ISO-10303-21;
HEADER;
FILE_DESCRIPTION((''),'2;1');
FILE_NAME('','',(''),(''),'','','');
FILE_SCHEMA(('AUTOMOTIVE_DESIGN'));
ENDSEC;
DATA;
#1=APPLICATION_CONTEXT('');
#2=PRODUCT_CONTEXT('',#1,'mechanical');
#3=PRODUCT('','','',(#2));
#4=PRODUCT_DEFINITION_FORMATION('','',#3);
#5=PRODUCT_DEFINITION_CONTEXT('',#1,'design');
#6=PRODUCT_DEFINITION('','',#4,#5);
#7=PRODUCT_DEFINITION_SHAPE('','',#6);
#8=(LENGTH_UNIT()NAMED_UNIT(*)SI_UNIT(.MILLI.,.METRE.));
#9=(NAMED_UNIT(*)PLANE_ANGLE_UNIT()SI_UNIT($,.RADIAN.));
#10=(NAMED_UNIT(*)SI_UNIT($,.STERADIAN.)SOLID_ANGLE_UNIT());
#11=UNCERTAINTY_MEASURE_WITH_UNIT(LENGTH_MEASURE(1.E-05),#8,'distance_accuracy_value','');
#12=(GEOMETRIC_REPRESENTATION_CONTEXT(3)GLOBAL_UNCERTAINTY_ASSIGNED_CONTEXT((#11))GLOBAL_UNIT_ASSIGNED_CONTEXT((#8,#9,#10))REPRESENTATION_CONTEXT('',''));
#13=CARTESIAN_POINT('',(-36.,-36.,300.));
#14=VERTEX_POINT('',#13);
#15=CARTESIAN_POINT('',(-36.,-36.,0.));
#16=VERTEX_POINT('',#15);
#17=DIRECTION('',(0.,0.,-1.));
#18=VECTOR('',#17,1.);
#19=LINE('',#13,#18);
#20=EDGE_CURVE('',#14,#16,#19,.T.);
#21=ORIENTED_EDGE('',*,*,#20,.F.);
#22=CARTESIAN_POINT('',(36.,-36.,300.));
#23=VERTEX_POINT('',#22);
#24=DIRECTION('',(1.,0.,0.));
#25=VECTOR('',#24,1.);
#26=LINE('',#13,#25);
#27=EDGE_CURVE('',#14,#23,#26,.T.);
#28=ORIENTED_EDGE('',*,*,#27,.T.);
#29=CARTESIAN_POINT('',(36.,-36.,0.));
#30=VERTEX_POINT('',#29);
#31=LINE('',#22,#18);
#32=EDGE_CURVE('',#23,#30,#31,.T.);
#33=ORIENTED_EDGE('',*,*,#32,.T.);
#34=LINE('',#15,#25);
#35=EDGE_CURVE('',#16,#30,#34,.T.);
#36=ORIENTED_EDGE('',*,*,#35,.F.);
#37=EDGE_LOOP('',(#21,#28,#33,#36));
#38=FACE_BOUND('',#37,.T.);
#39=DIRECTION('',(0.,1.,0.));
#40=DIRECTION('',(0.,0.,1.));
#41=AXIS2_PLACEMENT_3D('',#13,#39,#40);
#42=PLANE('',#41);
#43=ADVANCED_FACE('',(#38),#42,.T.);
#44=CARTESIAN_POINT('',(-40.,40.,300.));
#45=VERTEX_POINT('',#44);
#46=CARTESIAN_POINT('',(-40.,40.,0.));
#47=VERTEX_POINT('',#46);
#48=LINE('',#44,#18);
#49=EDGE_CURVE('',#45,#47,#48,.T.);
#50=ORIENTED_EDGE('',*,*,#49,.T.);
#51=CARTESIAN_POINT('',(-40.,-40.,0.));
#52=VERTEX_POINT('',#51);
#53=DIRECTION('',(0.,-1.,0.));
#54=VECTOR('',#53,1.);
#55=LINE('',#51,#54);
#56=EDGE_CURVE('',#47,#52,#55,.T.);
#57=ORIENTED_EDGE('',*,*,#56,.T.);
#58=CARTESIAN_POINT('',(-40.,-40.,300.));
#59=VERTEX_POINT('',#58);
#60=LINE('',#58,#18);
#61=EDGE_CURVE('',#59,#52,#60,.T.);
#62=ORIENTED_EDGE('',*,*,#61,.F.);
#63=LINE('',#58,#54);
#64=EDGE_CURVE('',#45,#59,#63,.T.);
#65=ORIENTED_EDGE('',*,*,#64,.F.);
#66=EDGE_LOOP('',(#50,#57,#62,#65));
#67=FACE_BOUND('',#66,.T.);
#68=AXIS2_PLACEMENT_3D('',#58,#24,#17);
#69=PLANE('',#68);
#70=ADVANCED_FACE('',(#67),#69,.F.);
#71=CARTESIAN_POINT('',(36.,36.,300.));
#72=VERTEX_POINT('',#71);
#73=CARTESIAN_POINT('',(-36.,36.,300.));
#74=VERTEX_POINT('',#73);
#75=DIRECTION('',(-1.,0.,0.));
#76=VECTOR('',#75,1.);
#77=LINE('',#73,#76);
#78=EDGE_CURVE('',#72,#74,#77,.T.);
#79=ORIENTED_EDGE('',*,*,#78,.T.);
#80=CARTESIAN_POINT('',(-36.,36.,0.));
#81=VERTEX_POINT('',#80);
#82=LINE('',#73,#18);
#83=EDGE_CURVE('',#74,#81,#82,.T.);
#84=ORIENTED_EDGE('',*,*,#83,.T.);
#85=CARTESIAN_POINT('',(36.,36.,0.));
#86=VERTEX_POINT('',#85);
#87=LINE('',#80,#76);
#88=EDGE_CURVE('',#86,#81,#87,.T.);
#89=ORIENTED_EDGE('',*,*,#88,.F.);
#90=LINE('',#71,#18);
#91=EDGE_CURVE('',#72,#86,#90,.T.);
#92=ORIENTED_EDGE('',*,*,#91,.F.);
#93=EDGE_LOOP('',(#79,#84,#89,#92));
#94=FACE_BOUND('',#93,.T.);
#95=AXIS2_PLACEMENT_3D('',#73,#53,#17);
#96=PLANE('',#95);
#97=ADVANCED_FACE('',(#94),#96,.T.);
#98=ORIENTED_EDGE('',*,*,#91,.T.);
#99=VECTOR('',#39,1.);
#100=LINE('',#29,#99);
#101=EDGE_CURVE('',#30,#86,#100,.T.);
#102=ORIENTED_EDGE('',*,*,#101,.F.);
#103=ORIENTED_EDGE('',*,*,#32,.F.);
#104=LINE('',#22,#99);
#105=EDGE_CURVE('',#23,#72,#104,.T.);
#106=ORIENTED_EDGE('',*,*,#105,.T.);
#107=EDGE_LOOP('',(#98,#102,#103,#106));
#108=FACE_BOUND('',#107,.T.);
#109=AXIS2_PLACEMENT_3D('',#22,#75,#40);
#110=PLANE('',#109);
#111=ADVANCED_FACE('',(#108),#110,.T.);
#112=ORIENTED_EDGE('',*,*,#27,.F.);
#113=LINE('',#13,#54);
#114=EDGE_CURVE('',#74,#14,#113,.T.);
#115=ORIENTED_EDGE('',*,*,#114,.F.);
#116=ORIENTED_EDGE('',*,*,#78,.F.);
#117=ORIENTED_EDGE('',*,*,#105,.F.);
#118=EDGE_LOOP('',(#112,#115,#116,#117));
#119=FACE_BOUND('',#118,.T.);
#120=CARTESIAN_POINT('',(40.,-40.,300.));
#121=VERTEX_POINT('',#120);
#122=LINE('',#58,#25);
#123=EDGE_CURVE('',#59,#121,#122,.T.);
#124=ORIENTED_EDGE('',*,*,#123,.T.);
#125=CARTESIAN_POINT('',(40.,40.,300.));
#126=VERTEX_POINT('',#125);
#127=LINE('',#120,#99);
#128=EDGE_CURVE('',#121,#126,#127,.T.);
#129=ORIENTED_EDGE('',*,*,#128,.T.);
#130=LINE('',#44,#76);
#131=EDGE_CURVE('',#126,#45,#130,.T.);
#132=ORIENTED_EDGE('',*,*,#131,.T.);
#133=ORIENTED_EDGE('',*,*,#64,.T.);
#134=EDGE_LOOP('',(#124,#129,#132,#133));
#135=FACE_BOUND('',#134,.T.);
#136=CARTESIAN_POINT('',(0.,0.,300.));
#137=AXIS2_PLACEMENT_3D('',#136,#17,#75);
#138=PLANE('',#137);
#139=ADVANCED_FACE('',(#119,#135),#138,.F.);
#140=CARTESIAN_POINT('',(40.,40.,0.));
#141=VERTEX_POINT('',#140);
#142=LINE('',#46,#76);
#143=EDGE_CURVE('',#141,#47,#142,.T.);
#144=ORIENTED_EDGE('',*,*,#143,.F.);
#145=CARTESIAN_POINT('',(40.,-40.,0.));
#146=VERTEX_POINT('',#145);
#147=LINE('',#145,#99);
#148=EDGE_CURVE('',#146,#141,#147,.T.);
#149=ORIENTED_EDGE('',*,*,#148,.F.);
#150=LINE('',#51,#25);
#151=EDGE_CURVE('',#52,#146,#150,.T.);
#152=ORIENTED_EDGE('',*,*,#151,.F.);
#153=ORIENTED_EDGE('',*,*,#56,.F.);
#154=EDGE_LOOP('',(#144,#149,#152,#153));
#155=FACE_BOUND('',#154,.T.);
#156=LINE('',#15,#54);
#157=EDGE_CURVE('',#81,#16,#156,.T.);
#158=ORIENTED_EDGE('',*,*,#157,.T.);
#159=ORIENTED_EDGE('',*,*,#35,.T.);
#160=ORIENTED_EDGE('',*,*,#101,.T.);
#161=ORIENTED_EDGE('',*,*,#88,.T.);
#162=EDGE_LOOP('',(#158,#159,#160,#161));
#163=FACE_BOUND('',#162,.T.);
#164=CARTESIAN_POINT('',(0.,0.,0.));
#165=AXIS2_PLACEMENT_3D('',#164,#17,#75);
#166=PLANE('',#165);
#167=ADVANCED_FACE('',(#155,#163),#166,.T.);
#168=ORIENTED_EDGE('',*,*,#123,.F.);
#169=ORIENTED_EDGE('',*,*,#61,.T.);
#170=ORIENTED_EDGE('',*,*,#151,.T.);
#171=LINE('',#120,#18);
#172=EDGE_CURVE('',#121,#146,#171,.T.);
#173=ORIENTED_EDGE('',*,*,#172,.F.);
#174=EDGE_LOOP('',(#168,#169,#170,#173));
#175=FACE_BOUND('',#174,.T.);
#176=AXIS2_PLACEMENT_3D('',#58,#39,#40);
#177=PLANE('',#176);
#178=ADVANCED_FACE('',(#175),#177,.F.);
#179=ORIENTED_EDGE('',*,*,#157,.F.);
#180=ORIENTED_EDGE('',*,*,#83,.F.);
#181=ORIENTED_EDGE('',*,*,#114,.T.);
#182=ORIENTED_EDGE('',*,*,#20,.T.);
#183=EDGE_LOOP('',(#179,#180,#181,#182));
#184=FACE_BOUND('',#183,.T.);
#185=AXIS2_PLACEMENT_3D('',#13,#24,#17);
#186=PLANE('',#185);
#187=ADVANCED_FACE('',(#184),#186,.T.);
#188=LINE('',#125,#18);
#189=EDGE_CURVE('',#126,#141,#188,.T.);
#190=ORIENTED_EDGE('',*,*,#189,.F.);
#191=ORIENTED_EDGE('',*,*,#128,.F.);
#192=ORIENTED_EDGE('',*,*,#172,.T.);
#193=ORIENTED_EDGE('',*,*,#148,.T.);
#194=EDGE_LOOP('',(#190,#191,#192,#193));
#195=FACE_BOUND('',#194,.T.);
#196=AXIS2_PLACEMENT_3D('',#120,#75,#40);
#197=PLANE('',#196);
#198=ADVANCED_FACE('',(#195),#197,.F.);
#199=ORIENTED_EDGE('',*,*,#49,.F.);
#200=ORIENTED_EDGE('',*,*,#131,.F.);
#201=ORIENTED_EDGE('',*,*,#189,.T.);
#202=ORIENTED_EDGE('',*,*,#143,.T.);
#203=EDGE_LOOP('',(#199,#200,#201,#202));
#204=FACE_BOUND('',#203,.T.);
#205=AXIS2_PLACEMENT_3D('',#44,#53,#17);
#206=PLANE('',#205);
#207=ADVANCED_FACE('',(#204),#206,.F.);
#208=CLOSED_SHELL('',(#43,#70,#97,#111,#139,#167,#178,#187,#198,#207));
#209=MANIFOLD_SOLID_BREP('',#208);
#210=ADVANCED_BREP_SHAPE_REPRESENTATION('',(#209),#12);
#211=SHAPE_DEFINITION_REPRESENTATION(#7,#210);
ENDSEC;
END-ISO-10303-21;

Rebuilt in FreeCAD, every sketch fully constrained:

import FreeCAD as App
import Part
import Sketcher

V = App.Vector

doc = App.newDocument("Part")
body = doc.addObject("PartDesign::Body", "Body")

# Sketch on XY plane
sketch1 = doc.addObject("Sketcher::SketchObject", "Sketch")
body.addObject(sketch1)
sketch1.AttachmentSupport = (doc.XY_Plane, [""])
sketch1.MapMode = "FlatFace"
sketch1.addGeometry(Part.LineSegment(V(-40, 40, 0), V(-40, -40, 0)), False)
sketch1.addGeometry(Part.LineSegment(V(-40, -40, 0), V(40, -40, 0)), False)
sketch1.addGeometry(Part.LineSegment(V(40, -40, 0), V(40, 40, 0)), False)
sketch1.addGeometry(Part.LineSegment(V(40, 40, 0), V(-40, 40, 0)), False)
sketch1.addGeometry(Part.LineSegment(V(36, -36, 0), V(-36, -36, 0)), False)
sketch1.addGeometry(Part.LineSegment(V(-36, -36, 0), V(-36, 36, 0)), False)
sketch1.addGeometry(Part.LineSegment(V(-36, 36, 0), V(36, 36, 0)), False)
sketch1.addGeometry(Part.LineSegment(V(36, 36, 0), V(36, -36, 0)), False)
sketch1.addConstraint(Sketcher.Constraint("Coincident", 0, 2, 1, 1))
sketch1.addConstraint(Sketcher.Constraint("Coincident", 1, 2, 2, 1))
sketch1.addConstraint(Sketcher.Constraint("Coincident", 2, 2, 3, 1))
sketch1.addConstraint(Sketcher.Constraint("Coincident", 3, 2, 0, 1))
sketch1.addConstraint(Sketcher.Constraint("Coincident", 4, 2, 5, 1))
sketch1.addConstraint(Sketcher.Constraint("Coincident", 5, 2, 6, 1))
sketch1.addConstraint(Sketcher.Constraint("Coincident", 6, 2, 7, 1))
sketch1.addConstraint(Sketcher.Constraint("Coincident", 7, 2, 4, 1))
sketch1.addConstraint(Sketcher.Constraint("Vertical", 0))
sketch1.addConstraint(Sketcher.Constraint("Horizontal", 1))
sketch1.addConstraint(Sketcher.Constraint("Vertical", 2))
sketch1.addConstraint(Sketcher.Constraint("Horizontal", 3))
sketch1.addConstraint(Sketcher.Constraint("Horizontal", 4))
sketch1.addConstraint(Sketcher.Constraint("Vertical", 5))
sketch1.addConstraint(Sketcher.Constraint("Horizontal", 6))
sketch1.addConstraint(Sketcher.Constraint("Vertical", 7))
sketch1.addConstraint(Sketcher.Constraint("Symmetric", 0, 2, 2, 2, -1, 1))
sketch1.addConstraint(Sketcher.Constraint("Symmetric", 4, 2, 6, 2, -1, 1))
sketch1.addConstraint(Sketcher.Constraint("Equal", 3, 0))
sketch1.addConstraint(Sketcher.Constraint("Equal", 6, 5))
sketch1.addConstraint(Sketcher.Constraint("DistanceX", 1, 1, 1, 2, 80.0))
sketch1.addConstraint(Sketcher.Constraint("DistanceX", 4, 2, 4, 1, 72.0))
pad1 = doc.addObject("PartDesign::Pad", "Pad")
body.addObject(pad1)
pad1.Profile = sketch1
pad1.Length = 300

doc.recompute()
